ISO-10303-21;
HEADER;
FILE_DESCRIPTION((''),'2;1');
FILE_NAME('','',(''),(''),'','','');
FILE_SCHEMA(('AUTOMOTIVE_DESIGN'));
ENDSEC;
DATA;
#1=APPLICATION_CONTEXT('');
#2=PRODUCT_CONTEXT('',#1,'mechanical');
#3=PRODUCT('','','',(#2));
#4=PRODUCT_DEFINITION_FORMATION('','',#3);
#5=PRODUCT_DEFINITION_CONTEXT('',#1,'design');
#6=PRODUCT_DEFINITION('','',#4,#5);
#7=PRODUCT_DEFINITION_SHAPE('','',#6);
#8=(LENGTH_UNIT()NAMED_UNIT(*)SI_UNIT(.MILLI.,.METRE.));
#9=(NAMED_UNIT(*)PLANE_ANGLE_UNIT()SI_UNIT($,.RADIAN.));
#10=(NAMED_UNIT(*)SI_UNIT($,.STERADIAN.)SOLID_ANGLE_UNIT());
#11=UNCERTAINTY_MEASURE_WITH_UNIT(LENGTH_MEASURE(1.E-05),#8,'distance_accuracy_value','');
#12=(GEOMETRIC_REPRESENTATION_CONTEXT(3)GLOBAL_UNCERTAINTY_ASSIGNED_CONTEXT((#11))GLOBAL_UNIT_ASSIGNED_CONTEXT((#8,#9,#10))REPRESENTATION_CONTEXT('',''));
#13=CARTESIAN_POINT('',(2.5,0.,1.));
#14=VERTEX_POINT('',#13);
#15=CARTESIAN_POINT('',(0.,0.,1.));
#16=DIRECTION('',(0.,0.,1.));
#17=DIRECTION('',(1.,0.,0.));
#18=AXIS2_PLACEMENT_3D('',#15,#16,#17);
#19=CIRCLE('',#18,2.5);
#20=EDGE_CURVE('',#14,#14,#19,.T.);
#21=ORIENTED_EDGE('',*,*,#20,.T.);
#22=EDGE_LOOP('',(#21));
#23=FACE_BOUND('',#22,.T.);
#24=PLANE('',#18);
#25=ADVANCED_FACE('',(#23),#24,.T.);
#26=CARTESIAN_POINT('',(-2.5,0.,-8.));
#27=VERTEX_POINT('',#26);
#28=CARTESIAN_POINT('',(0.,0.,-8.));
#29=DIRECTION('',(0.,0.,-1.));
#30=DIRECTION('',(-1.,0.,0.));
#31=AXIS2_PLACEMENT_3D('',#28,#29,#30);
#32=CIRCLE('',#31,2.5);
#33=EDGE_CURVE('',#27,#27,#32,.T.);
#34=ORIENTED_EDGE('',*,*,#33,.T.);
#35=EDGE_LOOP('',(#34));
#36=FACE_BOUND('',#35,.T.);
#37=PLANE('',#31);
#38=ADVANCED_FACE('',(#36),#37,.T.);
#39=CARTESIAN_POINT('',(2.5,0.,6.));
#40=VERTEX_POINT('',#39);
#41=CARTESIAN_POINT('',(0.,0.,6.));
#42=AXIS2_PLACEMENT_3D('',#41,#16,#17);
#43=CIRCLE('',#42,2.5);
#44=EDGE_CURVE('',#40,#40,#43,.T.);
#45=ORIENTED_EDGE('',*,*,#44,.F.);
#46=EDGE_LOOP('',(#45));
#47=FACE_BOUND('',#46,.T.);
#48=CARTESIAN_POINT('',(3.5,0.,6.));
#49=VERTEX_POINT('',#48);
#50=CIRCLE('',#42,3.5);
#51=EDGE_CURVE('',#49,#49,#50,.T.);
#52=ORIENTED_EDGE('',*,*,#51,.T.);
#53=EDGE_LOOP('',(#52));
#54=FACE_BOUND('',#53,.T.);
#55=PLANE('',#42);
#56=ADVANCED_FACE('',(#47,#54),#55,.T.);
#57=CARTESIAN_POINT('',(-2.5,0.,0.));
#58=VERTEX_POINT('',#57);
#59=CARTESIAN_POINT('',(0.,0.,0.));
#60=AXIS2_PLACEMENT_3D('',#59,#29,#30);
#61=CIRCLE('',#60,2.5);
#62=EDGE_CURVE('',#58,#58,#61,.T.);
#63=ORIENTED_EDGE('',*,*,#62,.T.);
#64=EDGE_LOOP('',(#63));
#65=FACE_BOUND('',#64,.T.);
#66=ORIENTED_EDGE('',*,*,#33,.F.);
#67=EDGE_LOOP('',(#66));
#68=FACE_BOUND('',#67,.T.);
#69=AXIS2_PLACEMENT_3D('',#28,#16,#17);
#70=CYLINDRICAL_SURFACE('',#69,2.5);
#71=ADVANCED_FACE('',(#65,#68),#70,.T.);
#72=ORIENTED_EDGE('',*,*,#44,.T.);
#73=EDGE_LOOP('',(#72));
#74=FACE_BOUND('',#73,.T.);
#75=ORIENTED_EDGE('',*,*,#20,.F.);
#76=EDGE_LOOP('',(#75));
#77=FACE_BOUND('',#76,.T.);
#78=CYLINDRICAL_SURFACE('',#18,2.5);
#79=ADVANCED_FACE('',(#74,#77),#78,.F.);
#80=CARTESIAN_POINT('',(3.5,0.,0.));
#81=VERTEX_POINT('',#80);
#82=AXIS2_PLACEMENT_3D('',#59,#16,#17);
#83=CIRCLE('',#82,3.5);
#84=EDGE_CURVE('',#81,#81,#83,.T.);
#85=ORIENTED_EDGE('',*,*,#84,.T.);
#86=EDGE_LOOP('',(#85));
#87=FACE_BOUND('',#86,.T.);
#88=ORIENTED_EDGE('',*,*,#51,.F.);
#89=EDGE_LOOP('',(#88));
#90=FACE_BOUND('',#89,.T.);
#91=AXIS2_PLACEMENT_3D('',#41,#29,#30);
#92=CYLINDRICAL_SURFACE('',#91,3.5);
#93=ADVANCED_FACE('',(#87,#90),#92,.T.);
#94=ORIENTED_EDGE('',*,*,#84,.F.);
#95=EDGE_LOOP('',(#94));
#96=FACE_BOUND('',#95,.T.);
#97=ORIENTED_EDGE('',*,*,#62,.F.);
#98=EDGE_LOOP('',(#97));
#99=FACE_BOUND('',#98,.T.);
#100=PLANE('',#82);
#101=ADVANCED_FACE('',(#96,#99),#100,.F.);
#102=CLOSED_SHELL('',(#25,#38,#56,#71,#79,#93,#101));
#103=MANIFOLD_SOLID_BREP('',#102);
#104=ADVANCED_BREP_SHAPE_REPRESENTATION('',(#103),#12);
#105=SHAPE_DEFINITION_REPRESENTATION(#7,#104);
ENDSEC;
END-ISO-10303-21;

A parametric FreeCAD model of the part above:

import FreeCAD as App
import Part
import Sketcher

V = App.Vector
Q = App.Units.Quantity

doc = App.newDocument("Part")
body = doc.addObject("PartDesign::Body", "Body")

# Sketch on XY plane
sketch1 = doc.addObject("Sketcher::SketchObject", "Sketch")
body.addObject(sketch1)
sketch1.AttachmentSupport = (doc.XY_Plane, [""])
sketch1.MapMode = "FlatFace"
sketch1.addGeometry(Part.Circle(V(0, 0, 0), V(0, 0, 1), 3.5), False)
sketch1.addConstraint(Sketcher.Constraint("Coincident", 0, 3, -1, 1))
sketch1.addConstraint(Sketcher.Constraint("Diameter", 0, Q("7 mm")))
pad1 = doc.addObject("PartDesign::Pad", "Pad")
body.addObject(pad1)
pad1.Profile = sketch1
pad1.Length = 6

# Sketch on XY plane
sketch2 = doc.addObject("Sketcher::SketchObject", "Sketch001")
body.addObject(sketch2)
sketch2.AttachmentSupport = (doc.XY_Plane, [""])
sketch2.MapMode = "FlatFace"
sketch2.AttachmentOffset = App.Placement(V(0, 0, 6), App.Rotation())
sketch2.addGeometry(Part.Circle(V(0, 0, 0), V(0, 0, 1), 2.5), False)
sketch2.addConstraint(Sketcher.Constraint("Coincident", 0, 3, -1, 1))
sketch2.addConstraint(Sketcher.Constraint("Diameter", 0, Q("5 mm")))
pocket1 = doc.addObject("PartDesign::Pocket", "Pocket")
body.addObject(pocket1)
pocket1.Profile = sketch2
pocket1.Length = 5

# Sketch on XY plane
sketch3 = doc.addObject("Sketcher::SketchObject", "Sketch002")
body.addObject(sketch3)
sketch3.AttachmentSupport = (doc.XY_Plane, [""])
sketch3.MapMode = "FlatFace"
sketch3.addGeometry(Part.Circle(V(0, 0, 0), V(0, 0, 1), 2.5), False)
sketch3.addConstraint(Sketcher.Constraint("Coincident", 0, 3, -1, 1))
sketch3.addConstraint(Sketcher.Constraint("Diameter", 0, Q("5 mm")))
pad2 = doc.addObject("PartDesign::Pad", "Pad001")
body.addObject(pad2)
pad2.Profile = sketch3
pad2.Length = 8
pad2.Reversed = True

doc.recompute()
